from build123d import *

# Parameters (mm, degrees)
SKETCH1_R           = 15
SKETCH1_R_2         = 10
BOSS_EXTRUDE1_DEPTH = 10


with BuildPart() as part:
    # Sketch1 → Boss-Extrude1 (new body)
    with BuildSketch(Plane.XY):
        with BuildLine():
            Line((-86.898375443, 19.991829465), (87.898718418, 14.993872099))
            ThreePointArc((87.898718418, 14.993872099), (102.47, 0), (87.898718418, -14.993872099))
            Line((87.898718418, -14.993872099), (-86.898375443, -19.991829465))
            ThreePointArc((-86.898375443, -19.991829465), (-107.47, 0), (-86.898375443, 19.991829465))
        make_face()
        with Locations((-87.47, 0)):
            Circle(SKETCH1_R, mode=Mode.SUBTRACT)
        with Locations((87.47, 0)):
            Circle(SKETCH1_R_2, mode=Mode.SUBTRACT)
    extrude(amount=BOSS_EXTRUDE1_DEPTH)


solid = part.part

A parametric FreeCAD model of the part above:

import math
import FreeCAD as App
import Part
import Sketcher

V = App.Vector
Q = App.Units.Quantity

doc = App.newDocument("Part")
body = doc.addObject("PartDesign::Body", "Body")

# Sketch on XY plane
sketch1 = doc.addObject("Sketcher::SketchObject", "Sketch")
body.addObject(sketch1)
sketch1.AttachmentSupport = (doc.XY_Plane, [""])
sketch1.MapMode = "FlatFace"
sketch1.addGeometry([
    Part.LineSegment(V(88, 15, 0), V(-87, 20, 0)),  # 0
    Part.ArcOfCircle(Part.Circle(V(-87, 0, 0), V(0, 0, 1), 20), math.radians(88), math.radians(272)),  # 1
    Part.LineSegment(V(-87, -20, 0), V(88, -15, 0)),  # 2
    Part.ArcOfCircle(Part.Circle(V(87, 0, 0), V(0, 0, 1), 15), math.radians(-88), math.radians(88)),  # 3
    Part.Circle(V(87, 0, 0), V(0, 0, 1), 10),  # 4
    Part.Circle(V(-87, 0, 0), V(0, 0, 1), 15),  # 5
], False)
sketch1.addConstraint([
    Sketcher.Constraint("Tangent", 0, 2, 1, 1),
    Sketcher.Constraint("Tangent", 1, 2, 2, 1),
    Sketcher.Constraint("Tangent", 2, 2, 3, 1),
    Sketcher.Constraint("Tangent", 3, 2, 0, 1),
    Sketcher.Constraint("Coincident", 4, 3, 3, 3),
    Sketcher.Constraint("Coincident", 5, 3, 1, 3),
    Sketcher.Constraint("Equal", 3, 5),
    Sketcher.Constraint("Symmetric", 1, 3, 3, 3, -1, 1),
    Sketcher.Constraint("PointOnObject", 1, 3, -1),
    Sketcher.Constraint("Diameter", 4, Q("20 mm")),
    Sketcher.Constraint("Diameter", 5, Q("30 mm")),
    Sketcher.Constraint("Radius", 1, Q("20 mm")),
    Sketcher.Constraint("DistanceX", 1, 3, -1, 1, Q("87.47 mm")),
])
pad1 = doc.addObject("PartDesign::Pad", "Pad")
body.addObject(pad1)
pad1.Profile = sketch1
pad1.Length = 10

doc.recompute()
